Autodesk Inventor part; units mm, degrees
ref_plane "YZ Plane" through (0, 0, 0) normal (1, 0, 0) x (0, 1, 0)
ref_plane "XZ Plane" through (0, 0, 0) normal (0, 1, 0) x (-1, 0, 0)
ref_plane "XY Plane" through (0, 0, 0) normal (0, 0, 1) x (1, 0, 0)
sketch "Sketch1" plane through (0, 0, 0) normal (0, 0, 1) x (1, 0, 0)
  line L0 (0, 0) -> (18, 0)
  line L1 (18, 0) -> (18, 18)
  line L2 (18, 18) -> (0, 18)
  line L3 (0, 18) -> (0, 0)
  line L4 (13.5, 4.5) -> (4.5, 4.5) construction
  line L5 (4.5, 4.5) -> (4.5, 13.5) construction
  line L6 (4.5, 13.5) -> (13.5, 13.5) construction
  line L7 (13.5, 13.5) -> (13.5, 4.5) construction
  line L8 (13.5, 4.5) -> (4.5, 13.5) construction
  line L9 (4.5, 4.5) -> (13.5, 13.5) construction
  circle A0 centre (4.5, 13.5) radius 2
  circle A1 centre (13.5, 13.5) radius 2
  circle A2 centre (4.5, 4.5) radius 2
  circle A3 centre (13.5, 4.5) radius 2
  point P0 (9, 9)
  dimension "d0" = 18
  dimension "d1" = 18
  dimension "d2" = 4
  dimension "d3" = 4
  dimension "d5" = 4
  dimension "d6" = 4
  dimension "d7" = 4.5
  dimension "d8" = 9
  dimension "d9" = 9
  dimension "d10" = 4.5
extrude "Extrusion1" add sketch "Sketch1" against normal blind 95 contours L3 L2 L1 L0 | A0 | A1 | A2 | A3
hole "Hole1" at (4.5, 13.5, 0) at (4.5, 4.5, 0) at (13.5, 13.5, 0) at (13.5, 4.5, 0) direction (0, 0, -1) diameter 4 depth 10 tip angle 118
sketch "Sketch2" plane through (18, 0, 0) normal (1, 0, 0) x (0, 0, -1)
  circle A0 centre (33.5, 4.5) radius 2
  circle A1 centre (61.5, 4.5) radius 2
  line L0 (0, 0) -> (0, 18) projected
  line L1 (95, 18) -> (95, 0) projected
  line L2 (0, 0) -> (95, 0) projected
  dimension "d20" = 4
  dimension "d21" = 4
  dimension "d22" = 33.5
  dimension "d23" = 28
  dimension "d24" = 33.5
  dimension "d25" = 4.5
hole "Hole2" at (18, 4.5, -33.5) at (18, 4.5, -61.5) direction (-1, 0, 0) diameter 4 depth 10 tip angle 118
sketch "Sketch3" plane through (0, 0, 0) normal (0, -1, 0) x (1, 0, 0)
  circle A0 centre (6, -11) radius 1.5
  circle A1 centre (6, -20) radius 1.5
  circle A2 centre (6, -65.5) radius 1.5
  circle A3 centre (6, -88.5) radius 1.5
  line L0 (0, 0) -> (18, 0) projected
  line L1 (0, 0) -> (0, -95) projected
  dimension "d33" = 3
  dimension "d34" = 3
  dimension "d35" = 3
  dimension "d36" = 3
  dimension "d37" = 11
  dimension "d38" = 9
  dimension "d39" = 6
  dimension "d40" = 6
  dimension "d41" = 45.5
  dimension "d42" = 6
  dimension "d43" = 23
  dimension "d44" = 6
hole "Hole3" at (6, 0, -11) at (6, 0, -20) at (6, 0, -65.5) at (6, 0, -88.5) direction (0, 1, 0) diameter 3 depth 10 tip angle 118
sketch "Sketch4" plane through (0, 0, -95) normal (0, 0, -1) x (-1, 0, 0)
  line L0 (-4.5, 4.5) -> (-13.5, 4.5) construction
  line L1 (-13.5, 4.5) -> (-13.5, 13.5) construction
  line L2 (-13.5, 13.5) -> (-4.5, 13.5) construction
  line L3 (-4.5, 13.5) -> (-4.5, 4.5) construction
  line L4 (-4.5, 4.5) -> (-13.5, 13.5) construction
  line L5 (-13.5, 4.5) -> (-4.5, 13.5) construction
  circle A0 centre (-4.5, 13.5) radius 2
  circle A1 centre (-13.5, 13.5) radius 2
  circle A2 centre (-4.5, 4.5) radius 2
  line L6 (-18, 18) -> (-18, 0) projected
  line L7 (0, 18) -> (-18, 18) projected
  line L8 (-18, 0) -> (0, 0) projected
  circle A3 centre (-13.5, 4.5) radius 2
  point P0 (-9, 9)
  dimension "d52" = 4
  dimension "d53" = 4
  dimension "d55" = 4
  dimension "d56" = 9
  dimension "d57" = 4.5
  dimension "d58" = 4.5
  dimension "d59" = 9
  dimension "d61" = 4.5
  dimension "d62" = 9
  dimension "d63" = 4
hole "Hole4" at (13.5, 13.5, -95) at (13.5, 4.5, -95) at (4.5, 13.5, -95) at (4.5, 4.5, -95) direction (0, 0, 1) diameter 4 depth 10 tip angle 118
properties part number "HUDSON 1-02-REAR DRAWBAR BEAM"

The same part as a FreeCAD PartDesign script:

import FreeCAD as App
import Part
import Sketcher

V = App.Vector


def add_polygon(sketch, points):
    """Adds a closed chain of lines whose ends are joined by coincident constraints."""
    first, n = sketch.GeometryCount, len(points)
    for a, b in zip(points, points[1:] + points[:1]):
        sketch.addGeometry(Part.LineSegment(App.Vector(*a, 0), App.Vector(*b, 0)), False)
    for i in range(n):
        sketch.addConstraint(Sketcher.Constraint("Coincident", first + i, 2, first + (i + 1) % n, 1))

doc = App.newDocument("Part")
params = doc.addObject("Spreadsheet::Sheet", "Params")
for row, (alias, value) in enumerate([
    ("sketch1_width", "18 mm"),
    ("pad1_length", "95 mm"),
    ("sketch2_diameter", "4 mm"),
    ("hole_diameter", "4 mm"),
    ("hole_depth", "10 mm"),
    ("sketch3_diameter", "4 mm"),
    ("hole2_diameter", "4 mm"),
    ("hole2_depth", "10 mm"),
    ("sketch4_diameter", "3 mm"),
    ("hole3_diameter", "3 mm"),
    ("hole3_depth", "10 mm"),
    ("sketch5_diameter", "4 mm"),
    ("hole4_diameter", "4 mm"),
    ("hole4_depth", "10 mm"),
], start=1):
    params.set(f"A{row}", alias)
    params.set(f"B{row}", "=" + value)
    params.setAlias(f"B{row}", alias)

body = doc.addObject("PartDesign::Body", "Body")

# Sketch on XY plane
sketch1 = body.newObject("Sketcher::SketchObject", "Sketch")
sketch1.AttachmentSupport = (doc.getObject("XY_Plane"), [""])
sketch1.MapMode = "FlatFace"
add_polygon(sketch1, [(0, 18), (0, 0), (18, 0), (18, 18)])  # lines 0-3
sketch1.addConstraint([
    Sketcher.Constraint("Vertical", 0),
    Sketcher.Constraint("Horizontal", 1),
    Sketcher.Constraint("Vertical", 2),
    Sketcher.Constraint("Horizontal", 3),
    Sketcher.Constraint("Coincident", 0, 2, -1, 1),
    Sketcher.Constraint("Equal", 3, 0),
    Sketcher.Constraint("DistanceX", 1, 1, 1, 2, 18.0),
])
sketch1.setExpression("Constraints[10]", "Params.sketch1_width")
pad1 = body.newObject("PartDesign::Pad", "Pad")
pad1.Profile = sketch1
pad1.setExpression("Length", "Params.pad1_length")
pad1.Reversed = True

# Sketch on XY plane
sketch2 = body.newObject("Sketcher::SketchObject", "Sketch001")
sketch2.AttachmentSupport = (doc.getObject("XY_Plane"), [""])
sketch2.MapMode = "FlatFace"
sketch2.addGeometry([
    Part.Circle(V(4.5, 13.5, 0), V(0, 0, 1), 2),
    Part.Circle(V(4.5, 4.5, 0), V(0, 0, 1), 2),
    Part.Circle(V(13.5, 13.5, 0), V(0, 0, 1), 2),
    Part.Circle(V(13.5, 4.5, 0), V(0, 0, 1), 2),
], False)
sketch2.addConstraint([
    Sketcher.Constraint("Equal", 0, 1),
    Sketcher.Constraint("Equal", 1, 2),
    Sketcher.Constraint("Equal", 2, 3),
    Sketcher.Constraint("Horizontal", 0, 3, 2, 3),
    Sketcher.Constraint("Horizontal", 1, 3, 3, 3),
    Sketcher.Constraint("Vertical", 0, 3, 1, 3),
    Sketcher.Constraint("Vertical", 2, 3, 3, 3),
    Sketcher.Constraint("Diameter", 0, 4.0),
    Sketcher.Constraint("DistanceY", 1, 3, 0, 3, 9.0),
    Sketcher.Constraint("DistanceX", 0, 3, 2, 3, 9.0),
    Sketcher.Constraint("DistanceX", -1, 1, 0, 3, 4.5),
    Sketcher.Constraint("DistanceY", -1, 1, 0, 3, 13.5),
])
sketch2.setExpression("Constraints[7]", "Params.sketch2_diameter")
doc.recompute()
hole = body.newObject("PartDesign::Hole", "Hole")
hole.Profile = sketch2
hole.ThreadType = "None"
hole.setExpression("Diameter", "Params.hole_diameter")
hole.DepthType = "Dimension"
hole.setExpression("Depth", "Params.hole_depth")
hole.DrillPoint = "Angled"
hole.DrillPointAngle = 118

# Sketch on YZ plane
sketch3 = body.newObject("Sketcher::SketchObject", "Sketch002")
sketch3.AttachmentSupport = (doc.getObject("YZ_Plane"), [""])
sketch3.MapMode = "FlatFace"
sketch3.AttachmentOffset = App.Placement(V(0, 0, 18), App.Rotation())
sketch3.addGeometry([
    Part.Circle(V(4.5, -33.5, 0), V(0, 0, 1), 2),
    Part.Circle(V(4.5, -61.5, 0), V(0, 0, 1), 2),
], False)
sketch3.addConstraint([
    Sketcher.Constraint("Equal", 0, 1),
    Sketcher.Constraint("Vertical", 0, 3, 1, 3),
    Sketcher.Constraint("Diameter", 0, 4.0),
    Sketcher.Constraint("DistanceY", 1, 3, 0, 3, 28.0),
    Sketcher.Constraint("DistanceX", -1, 1, 0, 3, 4.5),
    Sketcher.Constraint("DistanceY", 0, 3, -1, 1, 33.5),
])
sketch3.setExpression("Constraints[2]", "Params.sketch3_diameter")
doc.recompute()
hole2 = body.newObject("PartDesign::Hole", "Hole001")
hole2.Profile = sketch3
hole2.ThreadType = "None"
hole2.setExpression("Diameter", "Params.hole2_diameter")
hole2.DepthType = "Dimension"
hole2.setExpression("Depth", "Params.hole2_depth")
hole2.DrillPoint = "Angled"
hole2.DrillPointAngle = 118

# Sketch on XZ plane
sketch4 = body.newObject("Sketcher::SketchObject", "Sketch003")
sketch4.AttachmentSupport = (doc.getObject("XZ_Plane"), [""])
sketch4.MapMode = "FlatFace"
sketch4.addGeometry([
    Part.Circle(V(6, -11, 0), V(0, 0, 1), 1.5),
    Part.Circle(V(6, -20, 0), V(0, 0, 1), 1.5),
    Part.Circle(V(6, -65.5, 0), V(0, 0, 1), 1.5),
    Part.Circle(V(6, -88.5, 0), V(0, 0, 1), 1.5),
], False)
sketch4.addConstraint([
    Sketcher.Constraint("Equal", 0, 1),
    Sketcher.Constraint("Equal", 1, 2),
    Sketcher.Constraint("Equal", 2, 3),
    Sketcher.Constraint("Vertical", 0, 3, 1, 3),
    Sketcher.Constraint("Vertical", 1, 3, 2, 3),
    Sketcher.Constraint("Vertical", 2, 3, 3, 3),
    Sketcher.Constraint("Diameter", 0, 3.0),
    Sketcher.Constraint("DistanceX", -1, 1, 0, 3, 6.0),
    Sketcher.Constraint("DistanceY", 0, 3, -1, 1, 11.0),
    Sketcher.Constraint("DistanceY", 1, 3, -1, 1, 20.0),
    Sketcher.Constraint("DistanceY", 3, 3, 2, 3, 23.0),
    Sketcher.Constraint("DistanceY", 2, 3, -1, 1, 65.5),
])
sketch4.setExpression("Constraints[6]", "Params.sketch4_diameter")
doc.recompute()
hole3 = body.newObject("PartDesign::Hole", "Hole002")
hole3.Profile = sketch4
hole3.ThreadType = "None"
hole3.setExpression("Diameter", "Params.hole3_diameter")
hole3.DepthType = "Dimension"
hole3.setExpression("Depth", "Params.hole3_depth")
hole3.DrillPoint = "Angled"
hole3.DrillPointAngle = 118

# Sketch on XY plane
sketch5 = body.newObject("Sketcher::SketchObject", "Sketch004")
sketch5.AttachmentSupport = (doc.getObject("XY_Plane"), [""])
sketch5.MapMode = "FlatFace"
sketch5.AttachmentOffset = App.Placement(V(0, 0, -95), App.Rotation())
sketch5.addGeometry([
    Part.Circle(V(13.5, 13.5, 0), V(0, 0, 1), 2),
    Part.Circle(V(13.5, 4.5, 0), V(0, 0, 1), 2),
    Part.Circle(V(4.5, 13.5, 0), V(0, 0, 1), 2),
    Part.Circle(V(4.5, 4.5, 0), V(0, 0, 1), 2),
], False)
sketch5.addConstraint([
    Sketcher.Constraint("Equal", 0, 1),
    Sketcher.Constraint("Equal", 1, 2),
    Sketcher.Constraint("Equal", 2, 3),
    Sketcher.Constraint("Horizontal", 0, 3, 2, 3),
    Sketcher.Constraint("Horizontal", 1, 3, 3, 3),
    Sketcher.Constraint("Vertical", 0, 3, 1, 3),
    Sketcher.Constraint("Vertical", 2, 3, 3, 3),
    Sketcher.Constraint("Diameter", 0, 4.0),
    Sketcher.Constraint("DistanceY", 1, 3, 0, 3, 9.0),
    Sketcher.Constraint("DistanceX", 2, 3, 0, 3, 9.0),
    Sketcher.Constraint("DistanceX", -1, 1, 0, 3, 13.5),
    Sketcher.Constraint("DistanceY", -1, 1, 0, 3, 13.5),
])
sketch5.setExpression("Constraints[7]", "Params.sketch5_diameter")
doc.recompute()
hole4 = body.newObject("PartDesign::Hole", "Hole003")
hole4.Profile = sketch5
hole4.ThreadType = "None"
hole4.setExpression("Diameter", "Params.hole4_diameter")
hole4.DepthType = "Dimension"
hole4.setExpression("Depth", "Params.hole4_depth")
hole4.DrillPoint = "Angled"
hole4.DrillPointAngle = 118
hole4.Reversed = True

doc.recompute()
